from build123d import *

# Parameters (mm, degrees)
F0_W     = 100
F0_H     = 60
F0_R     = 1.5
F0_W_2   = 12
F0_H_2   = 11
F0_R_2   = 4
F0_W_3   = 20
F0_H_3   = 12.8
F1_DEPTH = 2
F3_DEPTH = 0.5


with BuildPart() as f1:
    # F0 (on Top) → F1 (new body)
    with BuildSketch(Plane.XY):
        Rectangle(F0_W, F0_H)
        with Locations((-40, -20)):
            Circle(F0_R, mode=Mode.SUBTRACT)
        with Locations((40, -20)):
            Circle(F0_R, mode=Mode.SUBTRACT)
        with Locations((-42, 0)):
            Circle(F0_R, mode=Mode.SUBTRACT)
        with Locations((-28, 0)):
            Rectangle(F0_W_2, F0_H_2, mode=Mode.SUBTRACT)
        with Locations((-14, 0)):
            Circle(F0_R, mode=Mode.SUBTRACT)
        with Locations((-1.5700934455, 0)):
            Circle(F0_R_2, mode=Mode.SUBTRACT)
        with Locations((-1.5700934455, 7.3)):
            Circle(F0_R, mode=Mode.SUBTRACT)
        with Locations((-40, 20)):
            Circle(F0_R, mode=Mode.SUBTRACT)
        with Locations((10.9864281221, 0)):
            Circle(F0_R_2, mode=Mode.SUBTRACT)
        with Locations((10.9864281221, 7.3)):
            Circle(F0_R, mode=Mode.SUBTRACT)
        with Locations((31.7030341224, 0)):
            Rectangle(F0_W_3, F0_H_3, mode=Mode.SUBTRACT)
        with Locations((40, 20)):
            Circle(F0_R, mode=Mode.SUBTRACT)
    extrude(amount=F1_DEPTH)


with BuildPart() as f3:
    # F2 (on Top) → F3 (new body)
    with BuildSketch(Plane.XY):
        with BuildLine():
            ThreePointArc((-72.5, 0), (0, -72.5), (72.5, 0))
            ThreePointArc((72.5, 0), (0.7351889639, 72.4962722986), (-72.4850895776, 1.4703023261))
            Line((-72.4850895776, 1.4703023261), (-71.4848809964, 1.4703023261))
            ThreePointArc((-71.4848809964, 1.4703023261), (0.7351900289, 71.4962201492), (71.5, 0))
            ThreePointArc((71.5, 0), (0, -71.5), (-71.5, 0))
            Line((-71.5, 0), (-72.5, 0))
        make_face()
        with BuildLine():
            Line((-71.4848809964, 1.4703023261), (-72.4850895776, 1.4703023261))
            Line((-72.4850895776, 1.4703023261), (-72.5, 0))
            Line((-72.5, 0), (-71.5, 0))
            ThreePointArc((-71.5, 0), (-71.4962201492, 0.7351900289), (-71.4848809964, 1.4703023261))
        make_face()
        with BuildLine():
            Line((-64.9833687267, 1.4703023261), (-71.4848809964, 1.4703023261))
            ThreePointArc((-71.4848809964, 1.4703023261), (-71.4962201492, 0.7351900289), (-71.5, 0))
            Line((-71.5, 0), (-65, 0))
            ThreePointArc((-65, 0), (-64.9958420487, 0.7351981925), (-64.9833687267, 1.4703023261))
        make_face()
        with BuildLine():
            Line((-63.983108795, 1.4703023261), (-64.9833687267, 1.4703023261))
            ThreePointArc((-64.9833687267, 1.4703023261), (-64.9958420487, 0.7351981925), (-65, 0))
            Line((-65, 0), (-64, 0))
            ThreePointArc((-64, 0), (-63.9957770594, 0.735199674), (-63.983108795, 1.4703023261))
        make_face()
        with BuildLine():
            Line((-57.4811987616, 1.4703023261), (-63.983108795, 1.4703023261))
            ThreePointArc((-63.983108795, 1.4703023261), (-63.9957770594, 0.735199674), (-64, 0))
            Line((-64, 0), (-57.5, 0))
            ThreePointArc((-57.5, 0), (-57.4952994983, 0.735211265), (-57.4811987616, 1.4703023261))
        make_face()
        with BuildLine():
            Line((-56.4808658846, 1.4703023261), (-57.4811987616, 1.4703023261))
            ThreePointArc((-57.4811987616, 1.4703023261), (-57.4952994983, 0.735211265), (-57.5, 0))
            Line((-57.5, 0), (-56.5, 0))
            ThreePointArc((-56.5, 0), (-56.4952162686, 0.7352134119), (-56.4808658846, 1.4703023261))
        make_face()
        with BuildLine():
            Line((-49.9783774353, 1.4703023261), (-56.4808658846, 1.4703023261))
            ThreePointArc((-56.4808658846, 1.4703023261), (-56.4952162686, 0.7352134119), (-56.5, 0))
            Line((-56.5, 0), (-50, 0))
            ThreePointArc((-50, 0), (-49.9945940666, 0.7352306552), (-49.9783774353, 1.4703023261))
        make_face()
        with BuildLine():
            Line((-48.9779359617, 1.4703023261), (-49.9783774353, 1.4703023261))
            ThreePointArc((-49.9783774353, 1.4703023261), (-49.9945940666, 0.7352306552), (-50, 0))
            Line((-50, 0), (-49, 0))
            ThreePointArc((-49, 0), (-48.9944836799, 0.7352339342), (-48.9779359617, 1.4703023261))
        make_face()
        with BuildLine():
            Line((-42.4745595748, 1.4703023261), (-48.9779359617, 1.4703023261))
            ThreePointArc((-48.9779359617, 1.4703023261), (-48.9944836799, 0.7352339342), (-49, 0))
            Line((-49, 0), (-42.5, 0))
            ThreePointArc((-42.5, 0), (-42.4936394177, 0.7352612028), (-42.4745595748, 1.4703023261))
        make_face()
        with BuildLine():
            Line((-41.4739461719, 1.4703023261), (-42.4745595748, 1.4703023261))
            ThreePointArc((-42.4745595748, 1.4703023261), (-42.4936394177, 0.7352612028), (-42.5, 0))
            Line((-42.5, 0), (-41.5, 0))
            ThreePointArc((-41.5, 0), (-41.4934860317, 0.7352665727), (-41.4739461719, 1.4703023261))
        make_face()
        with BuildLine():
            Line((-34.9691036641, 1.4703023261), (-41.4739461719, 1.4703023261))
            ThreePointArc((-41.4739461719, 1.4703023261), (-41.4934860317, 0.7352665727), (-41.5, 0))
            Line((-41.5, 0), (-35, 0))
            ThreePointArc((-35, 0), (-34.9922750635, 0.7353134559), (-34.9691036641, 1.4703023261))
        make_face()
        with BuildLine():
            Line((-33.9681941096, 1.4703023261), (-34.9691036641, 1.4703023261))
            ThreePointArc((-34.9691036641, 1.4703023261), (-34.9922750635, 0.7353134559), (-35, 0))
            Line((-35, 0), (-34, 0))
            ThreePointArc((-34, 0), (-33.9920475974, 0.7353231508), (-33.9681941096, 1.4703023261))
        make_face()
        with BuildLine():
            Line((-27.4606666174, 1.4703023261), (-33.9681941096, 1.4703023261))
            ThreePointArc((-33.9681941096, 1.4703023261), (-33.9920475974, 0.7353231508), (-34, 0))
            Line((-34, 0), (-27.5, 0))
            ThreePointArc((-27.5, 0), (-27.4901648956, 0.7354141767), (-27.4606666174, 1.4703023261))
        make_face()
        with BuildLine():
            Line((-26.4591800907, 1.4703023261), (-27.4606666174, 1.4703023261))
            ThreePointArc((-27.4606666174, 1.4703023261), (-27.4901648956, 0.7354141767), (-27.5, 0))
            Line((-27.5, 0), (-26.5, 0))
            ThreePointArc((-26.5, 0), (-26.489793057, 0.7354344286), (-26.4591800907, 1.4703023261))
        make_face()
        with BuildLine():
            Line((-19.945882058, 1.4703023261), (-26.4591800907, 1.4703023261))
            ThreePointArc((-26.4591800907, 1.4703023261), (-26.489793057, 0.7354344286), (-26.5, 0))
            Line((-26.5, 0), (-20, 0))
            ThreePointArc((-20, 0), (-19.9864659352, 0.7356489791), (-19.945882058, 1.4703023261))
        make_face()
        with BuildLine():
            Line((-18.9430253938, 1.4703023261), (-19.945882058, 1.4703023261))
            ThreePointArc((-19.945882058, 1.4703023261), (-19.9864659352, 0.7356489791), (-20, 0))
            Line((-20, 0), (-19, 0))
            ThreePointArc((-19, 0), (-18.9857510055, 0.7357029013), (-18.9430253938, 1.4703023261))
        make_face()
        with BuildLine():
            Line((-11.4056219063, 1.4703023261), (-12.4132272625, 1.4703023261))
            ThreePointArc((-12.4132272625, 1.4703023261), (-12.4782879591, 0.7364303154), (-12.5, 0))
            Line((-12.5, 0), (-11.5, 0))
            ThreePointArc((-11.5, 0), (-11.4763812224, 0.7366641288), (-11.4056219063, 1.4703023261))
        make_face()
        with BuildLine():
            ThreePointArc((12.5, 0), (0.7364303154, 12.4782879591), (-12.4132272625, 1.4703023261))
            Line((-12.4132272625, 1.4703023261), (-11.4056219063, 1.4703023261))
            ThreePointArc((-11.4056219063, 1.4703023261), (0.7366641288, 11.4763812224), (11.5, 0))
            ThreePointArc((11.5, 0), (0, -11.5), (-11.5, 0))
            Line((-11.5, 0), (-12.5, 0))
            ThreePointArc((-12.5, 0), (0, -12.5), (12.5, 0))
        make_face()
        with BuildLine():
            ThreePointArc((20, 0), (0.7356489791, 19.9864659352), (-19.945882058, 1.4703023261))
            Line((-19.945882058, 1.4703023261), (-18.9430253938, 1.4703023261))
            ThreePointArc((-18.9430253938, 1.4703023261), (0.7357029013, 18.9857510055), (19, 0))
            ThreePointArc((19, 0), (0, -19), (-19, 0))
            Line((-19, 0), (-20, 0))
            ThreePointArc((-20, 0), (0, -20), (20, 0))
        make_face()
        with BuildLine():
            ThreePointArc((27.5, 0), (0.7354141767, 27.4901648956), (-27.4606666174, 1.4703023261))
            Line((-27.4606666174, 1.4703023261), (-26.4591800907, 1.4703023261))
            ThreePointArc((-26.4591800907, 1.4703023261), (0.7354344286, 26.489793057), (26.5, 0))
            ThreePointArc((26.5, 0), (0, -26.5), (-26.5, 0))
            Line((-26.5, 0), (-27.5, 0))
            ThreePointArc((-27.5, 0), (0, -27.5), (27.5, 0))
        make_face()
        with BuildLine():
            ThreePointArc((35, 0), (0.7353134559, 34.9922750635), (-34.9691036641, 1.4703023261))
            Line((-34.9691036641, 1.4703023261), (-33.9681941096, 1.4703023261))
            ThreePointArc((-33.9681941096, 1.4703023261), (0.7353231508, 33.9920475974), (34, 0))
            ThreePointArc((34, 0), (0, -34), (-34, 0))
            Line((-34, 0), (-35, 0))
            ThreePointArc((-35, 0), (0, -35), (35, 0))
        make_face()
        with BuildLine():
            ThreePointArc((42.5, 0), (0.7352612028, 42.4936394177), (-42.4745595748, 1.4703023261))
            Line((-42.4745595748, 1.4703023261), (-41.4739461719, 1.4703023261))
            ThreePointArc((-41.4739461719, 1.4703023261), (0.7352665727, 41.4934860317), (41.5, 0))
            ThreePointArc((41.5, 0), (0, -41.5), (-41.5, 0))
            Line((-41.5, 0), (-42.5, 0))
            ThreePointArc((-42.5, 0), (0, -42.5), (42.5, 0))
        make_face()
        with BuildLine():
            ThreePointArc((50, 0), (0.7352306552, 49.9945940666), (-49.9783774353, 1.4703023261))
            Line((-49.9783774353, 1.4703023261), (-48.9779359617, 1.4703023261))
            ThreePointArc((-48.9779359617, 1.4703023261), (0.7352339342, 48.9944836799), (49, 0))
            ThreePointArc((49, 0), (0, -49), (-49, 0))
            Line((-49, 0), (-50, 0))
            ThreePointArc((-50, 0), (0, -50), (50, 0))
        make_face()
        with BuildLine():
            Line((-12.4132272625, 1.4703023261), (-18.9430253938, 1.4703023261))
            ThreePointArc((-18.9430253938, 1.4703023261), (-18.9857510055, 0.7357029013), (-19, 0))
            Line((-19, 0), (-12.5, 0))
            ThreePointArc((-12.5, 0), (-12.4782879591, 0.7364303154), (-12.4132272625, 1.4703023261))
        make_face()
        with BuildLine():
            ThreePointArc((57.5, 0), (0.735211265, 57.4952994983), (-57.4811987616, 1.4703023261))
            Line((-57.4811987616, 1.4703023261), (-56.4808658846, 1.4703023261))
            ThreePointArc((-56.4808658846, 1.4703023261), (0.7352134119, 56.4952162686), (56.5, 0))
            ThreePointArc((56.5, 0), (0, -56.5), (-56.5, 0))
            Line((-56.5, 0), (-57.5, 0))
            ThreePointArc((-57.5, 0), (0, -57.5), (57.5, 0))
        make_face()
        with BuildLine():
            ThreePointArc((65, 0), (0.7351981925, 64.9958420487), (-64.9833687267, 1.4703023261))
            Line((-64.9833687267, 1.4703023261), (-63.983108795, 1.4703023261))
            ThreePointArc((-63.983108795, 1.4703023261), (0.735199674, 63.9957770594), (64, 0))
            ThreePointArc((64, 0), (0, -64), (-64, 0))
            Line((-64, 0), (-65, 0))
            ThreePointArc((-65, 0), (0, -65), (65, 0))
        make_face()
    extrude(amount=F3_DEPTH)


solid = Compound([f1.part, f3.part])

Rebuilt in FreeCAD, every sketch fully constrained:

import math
import FreeCAD as App
import Part
import Sketcher

V = App.Vector


def add_polygon(sketch, points):
    """Adds a closed chain of lines whose ends are joined by coincident constraints."""
    first, n = sketch.GeometryCount, len(points)
    for a, b in zip(points, points[1:] + points[:1]):
        sketch.addGeometry(Part.LineSegment(App.Vector(*a, 0), App.Vector(*b, 0)), False)
    for i in range(n):
        sketch.addConstraint(Sketcher.Constraint("Coincident", first + i, 2, first + (i + 1) % n, 1))

doc = App.newDocument("Part")
body = doc.addObject("PartDesign::Body", "Body")

# Sketch on XY plane
sketch1 = doc.addObject("Sketcher::SketchObject", "Sketch")
body.addObject(sketch1)
sketch1.AttachmentSupport = (doc.XY_Plane, [""])
sketch1.MapMode = "FlatFace"
add_polygon(sketch1, [(-50, 30), (-50, -30), (50, -30), (50, 30)])  # lines 0-3
sketch1.addGeometry(Part.Circle(V(-40, -20, 0), V(0, 0, 1), 1.5), False)  # 4
sketch1.addGeometry(Part.Circle(V(40, -20, 0), V(0, 0, 1), 1.5), False)  # 5
sketch1.addGeometry(Part.Circle(V(-42, 0, 0), V(0, 0, 1), 1.5), False)  # 6
add_polygon(sketch1, [(-22, -5.5), (-34, -5.5), (-34, 5.5), (-22, 5.5)])  # lines 7-10
sketch1.addGeometry(Part.Circle(V(-14, 0, 0), V(0, 0, 1), 1.5), False)  # 11
sketch1.addGeometry(Part.Circle(V(-1.6, 0, 0), V(0, 0, 1), 4), False)  # 12
sketch1.addGeometry(Part.Circle(V(-1.6, 7.3, 0), V(0, 0, 1), 1.5), False)  # 13
sketch1.addGeometry(Part.Circle(V(-40, 20, 0), V(0, 0, 1), 1.5), False)  # 14
sketch1.addGeometry(Part.Circle(V(11, 0, 0), V(0, 0, 1), 4), False)  # 15
sketch1.addGeometry(Part.Circle(V(11, 7.3, 0), V(0, 0, 1), 1.5), False)  # 16
add_polygon(sketch1, [(41.7, -6.4), (21.7, -6.4), (21.7, 6.4), (41.7, 6.4)])  # lines 17-20
sketch1.addGeometry(Part.Circle(V(40, 20, 0), V(0, 0, 1), 1.5), False)  # 21
sketch1.addConstraint([
    Sketcher.Constraint("Vertical", 0),
    Sketcher.Constraint("Horizontal", 1),
    Sketcher.Constraint("Vertical", 2),
    Sketcher.Constraint("Horizontal", 3),
    Sketcher.Constraint("Horizontal", 7),
    Sketcher.Constraint("Vertical", 8),
    Sketcher.Constraint("Horizontal", 9),
    Sketcher.Constraint("Vertical", 10),
    Sketcher.Constraint("Horizontal", 17),
    Sketcher.Constraint("Vertical", 18),
    Sketcher.Constraint("Horizontal", 19),
    Sketcher.Constraint("Vertical", 20),
    Sketcher.Constraint("Equal", 4, 5),
    Sketcher.Constraint("Equal", 5, 6),
    Sketcher.Constraint("Equal", 6, 11),
    Sketcher.Constraint("Equal", 11, 13),
    Sketcher.Constraint("Equal", 13, 14),
    Sketcher.Constraint("Equal", 12, 15),
    Sketcher.Constraint("Equal", 14, 16),
    Sketcher.Constraint("Equal", 16, 21),
    Sketcher.Constraint("Symmetric", 5, 3, 14, 3, -1, 1),
    Sketcher.Constraint("Symmetric", 4, 3, 21, 3, -1, 1),
    Sketcher.Constraint("Symmetric", 0, 2, 2, 2, -1, 1),
    Sketcher.Constraint("Symmetric", 4, 3, 5, 3, -2),
    Sketcher.Constraint("PointOnObject", 6, 3, -1),
    Sketcher.Constraint("PointOnObject", 11, 3, -1),
    Sketcher.Constraint("PointOnObject", 12, 3, -1),
    Sketcher.Constraint("PointOnObject", 15, 3, -1),
    Sketcher.Constraint("Horizontal", 13, 3, 16, 3),
    Sketcher.Constraint("Vertical", 12, 3, 13, 3),
    Sketcher.Constraint("Vertical", 15, 3, 16, 3),
    Sketcher.Constraint("Diameter", 4, 3.0),
    Sketcher.Constraint("Diameter", 12, 8.0),
    Sketcher.Constraint("DistanceX", 1, 1, 1, 2, 100.0),
    Sketcher.Constraint("DistanceX", 7, 2, 7, 1, 12.0),
    Sketcher.Constraint("DistanceX", 17, 2, 17, 1, 20.0),
    Sketcher.Constraint("DistanceY", 0, 2, 0, 1, 60.0),
    Sketcher.Constraint("DistanceY", 8, 1, 8, 2, 11.0),
    Sketcher.Constraint("DistanceY", 18, 1, 18, 2, 12.8),
    Sketcher.Constraint("DistanceX", 4, 3, -1, 1, 40.0),
    Sketcher.Constraint("DistanceY", 4, 3, -1, 1, 20.0),
    Sketcher.Constraint("DistanceX", 6, 3, -1, 1, 42.0),
    Sketcher.Constraint("DistanceX", 11, 3, -1, 1, 14.0),
    Sketcher.Constraint("DistanceX", 7, 2, -1, 1, 34.0),
    Sketcher.Constraint("DistanceY", -1, 1, 13, 3, 7.3),
    Sketcher.Constraint("DistanceY", 7, 2, -1, 1, 5.5),
    Sketcher.Constraint("DistanceY", 17, 2, -1, 1, 6.4),
    Sketcher.Constraint("DistanceX", -1, 1, 15, 3, 10.986428),
    Sketcher.Constraint("DistanceX", 12, 3, 15, 3, 12.556522),
    Sketcher.Constraint("DistanceX", -1, 1, 17, 2, 21.703034),
])
pad1 = doc.addObject("PartDesign::Pad", "Pad")
body.addObject(pad1)
pad1.Profile = sketch1
pad1.Length = 2
body2 = doc.addObject("PartDesign::Body", "Body001")

# Sketch on XY plane
sketch2 = doc.addObject("Sketcher::SketchObject", "Sketch001")
body2.addObject(sketch2)
sketch2.AttachmentSupport = (doc.getObject("XY_Plane001"), [""])
sketch2.MapMode = "FlatFace"
sketch2.addGeometry([
    Part.ArcOfCircle(Part.Circle(V(0, 0, 0), V(0, 0, 1), 72.5), math.radians(180), math.radians(539)),  # 0
    Part.LineSegment(V(-72.5, 1.5, 0), V(-72.5, 0, 0)),  # 1
    Part.ArcOfCircle(Part.Circle(V(0, 0, 0), V(0, 0, 1), 71.5), math.radians(180), math.radians(539)),  # 2
    Part.LineSegment(V(-71.5, 0, 0), V(-65, 0, 0)),  # 3
    Part.ArcOfCircle(Part.Circle(V(0, 0, 0), V(0, 0, 1), 65), math.radians(180), math.radians(539)),  # 4
    Part.LineSegment(V(-65, 1.5, 0), V(-71.5, 1.5, 0)),  # 5
    Part.LineSegment(V(-64, 0, 0), V(-57.5, 0, 0)),  # 6
    Part.ArcOfCircle(Part.Circle(V(0, 0, 0), V(0, 0, 1), 57.5), math.radians(180), math.radians(539)),  # 7
    Part.LineSegment(V(-57.5, 1.5, 0), V(-64, 1.5, 0)),  # 8
    Part.ArcOfCircle(Part.Circle(V(0, 0, 0), V(0, 0, 1), 64), math.radians(180), math.radians(539)),  # 9
    Part.LineSegment(V(-56.5, 0, 0), V(-50, 0, 0)),  # 10
    Part.ArcOfCircle(Part.Circle(V(0, 0, 0), V(0, 0, 1), 50), math.radians(180), math.radians(538)),  # 11
    Part.LineSegment(V(-50, 1.5, 0), V(-56.5, 1.5, 0)),  # 12
    Part.ArcOfCircle(Part.Circle(V(0, 0, 0), V(0, 0, 1), 56.5), math.radians(180), math.radians(539)),  # 13
    Part.LineSegment(V(-49, 0, 0), V(-42.5, 0, 0)),  # 14
    Part.ArcOfCircle(Part.Circle(V(0, 0, 0), V(0, 0, 1), 42.5), math.radians(180), math.radians(360)),  # 15
    Part.ArcOfCircle(Part.Circle(V(0, 0, 0), V(0, 0, 1), 42.5), math.radians(0), math.radians(178)),  # 16
    Part.LineSegment(V(-42.5, 1.5, 0), V(-49, 1.5, 0)),  # 17
    Part.ArcOfCircle(Part.Circle(V(0, 0, 0), V(0, 0, 1), 49), math.radians(180), math.radians(538)),  # 18
    Part.LineSegment(V(-41.5, 0, 0), V(-35, 0, 0)),  # 19
    Part.ArcOfCircle(Part.Circle(V(0, 0, 0), V(0, 0, 1), 35), math.radians(180), math.radians(538)),  # 20
    Part.LineSegment(V(-35, 1.5, 0), V(-41.5, 1.5, 0)),  # 21
    Part.ArcOfCircle(Part.Circle(V(0, 0, 0), V(0, 0, 1), 41.5), math.radians(0), math.radians(178)),  # 22
    Part.ArcOfCircle(Part.Circle(V(0, 0, 0), V(0, 0, 1), 41.5), math.radians(180), math.radians(360)),  # 23
    Part.LineSegment(V(-34, 0, 0), V(-27.5, 0, 0)),  # 24
    Part.ArcOfCircle(Part.Circle(V(0, 0, 0), V(0, 0, 1), 27.5), math.radians(180), math.radians(360)),  # 25
    Part.ArcOfCircle(Part.Circle(V(0, 0, 0), V(0, 0, 1), 27.5), math.radians(0), math.radians(177)),  # 26
    Part.LineSegment(V(-27.5, 1.5, 0), V(-34, 1.5, 0)),  # 27
    Part.ArcOfCircle(Part.Circle(V(0, 0, 0), V(0, 0, 1), 34), math.radians(180), math.radians(538)),  # 28
    Part.LineSegment(V(-26.5, 0, 0), V(-20, 0, 0)),  # 29
    Part.ArcOfCircle(Part.Circle(V(0, 0, 0), V(0, 0, 1), 20), math.radians(180), math.radians(360)),  # 30
    Part.ArcOfCircle(Part.Circle(V(0, 0, 0), V(0, 0, 1), 20), math.radians(0), math.radians(176)),  # 31
    Part.LineSegment(V(-19.9, 1.5, 0), V(-26.5, 1.5, 0)),  # 32
    Part.ArcOfCircle(Part.Circle(V(0, 0, 0), V(0, 0, 1), 26.5), math.radians(180), math.radians(537)),  # 33
    Part.ArcOfCircle(Part.Circle(V(0, 0, 0), V(0, 0, 1), 19), math.radians(0), math.radians(176)),  # 34
    Part.ArcOfCircle(Part.Circle(V(0, 0, 0), V(0, 0, 1), 19), math.radians(180), math.radians(360)),  # 35
    Part.LineSegment(V(-19, 0, 0), V(-12.5, 0, 0)),  # 36
    Part.ArcOfCircle(Part.Circle(V(0, 0, 0), V(0, 0, 1), 12.5), math.radians(180), math.radians(360)),  # 37
    Part.ArcOfCircle(Part.Circle(V(0, 0, 0), V(0, 0, 1), 12.5), math.radians(0), math.radians(173)),  # 38
    Part.LineSegment(V(-12.4, 1.5, 0), V(-18.9, 1.5, 0)),  # 39
    Part.ArcOfCircle(Part.Circle(V(0, 0, 0), V(0, 0, 1), 11.5), math.radians(180), math.radians(360)),  # 40
    Part.ArcOfCircle(Part.Circle(V(0, 0, 0), V(0, 0, 1), 11.5), math.radians(172.65), math.radians(180)),  # 41
    Part.ArcOfCircle(Part.Circle(V(0, 0, 0), V(0, 0, 1), 11.5), math.radians(0), math.radians(173)),  # 42
], False)
sketch2.addConstraint([
    Sketcher.Constraint("Coincident", 0, 1, 1, 2),
    Sketcher.Constraint("Coincident", 1, 1, 0, 2),
    Sketcher.Constraint("Coincident", 2, 1, 3, 1),
    Sketcher.Constraint("Coincident", 3, 2, 4, 1),
    Sketcher.Constraint("Coincident", 4, 2, 5, 1),
    Sketcher.Constraint("Coincident", 5, 2, 2, 2),
    Sketcher.Constraint("Coincident", 6, 2, 7, 1),
    Sketcher.Constraint("Coincident", 7, 2, 8, 1),
    Sketcher.Constraint("Coincident", 8, 2, 9, 2),
    Sketcher.Constraint("Coincident", 9, 1, 6, 1),
    Sketcher.Constraint("Coincident", 10, 2, 11, 1),
    Sketcher.Constraint("Coincident", 11, 2, 12, 1),
    Sketcher.Constraint("Coincident", 12, 2, 13, 2),
    Sketcher.Constraint("Coincident", 13, 1, 10, 1),
    Sketcher.Constraint("Coincident", 14, 2, 15, 1),
    Sketcher.Constraint("Tangent", 15, 2, 16, 1),
    Sketcher.Constraint("Coincident", 16, 2, 17, 1),
    Sketcher.Constraint("Coincident", 17, 2, 18, 2),
    Sketcher.Constraint("Coincident", 18, 1, 14, 1),
    Sketcher.Constraint("Coincident", 19, 2, 20, 1),
    Sketcher.Constraint("Coincident", 20, 2, 21, 1),
    Sketcher.Constraint("Coincident", 21, 2, 22, 2),
    Sketcher.Constraint("Tangent", 22, 1, 23, 2),
    Sketcher.Constraint("Coincident", 23, 1, 19, 1),
    Sketcher.Constraint("Coincident", 24, 2, 25, 1),
    Sketcher.Constraint("Tangent", 25, 2, 26, 1),
    Sketcher.Constraint("Coincident", 26, 2, 27, 1),
    Sketcher.Constraint("Coincident", 27, 2, 28, 2),
    Sketcher.Constraint("Coincident", 28, 1, 24, 1),
    Sketcher.Constraint("Coincident", 29, 2, 30, 1),
    Sketcher.Constraint("Tangent", 30, 2, 31, 1),
    Sketcher.Constraint("Coincident", 31, 2, 32, 1),
    Sketcher.Constraint("Coincident", 32, 2, 33, 2),
    Sketcher.Constraint("Coincident", 33, 1, 29, 1),
    Sketcher.Constraint("Tangent", 34, 1, 35, 2),
    Sketcher.Constraint("Coincident", 35, 1, 36, 1),
    Sketcher.Constraint("Coincident", 36, 2, 37, 1),
    Sketcher.Constraint("Tangent", 37, 2, 38, 1),
    Sketcher.Constraint("Coincident", 38, 2, 39, 1),
    Sketcher.Constraint("Coincident", 39, 2, 34, 2),
    Sketcher.Constraint("Tangent", 40, 1, 41, 2),
    Sketcher.Constraint("Tangent", 41, 1, 42, 2),
    Sketcher.Constraint("Tangent", 42, 1, 40, 2),
    Sketcher.Constraint("Horizontal", 3),
    Sketcher.Constraint("Horizontal", 5),
    Sketcher.Constraint("Horizontal", 6),
    Sketcher.Constraint("Horizontal", 8),
    Sketcher.Constraint("Horizontal", 10),
    Sketcher.Constraint("Horizontal", 12),
    Sketcher.Constraint("Horizontal", 14),
    Sketcher.Constraint("Horizontal", 17),
    Sketcher.Constraint("Horizontal", 19),
    Sketcher.Constraint("Horizontal", 21),
    Sketcher.Constraint("Horizontal", 24),
    Sketcher.Constraint("Horizontal", 27),
    Sketcher.Constraint("Horizontal", 29),
    Sketcher.Constraint("Horizontal", 32),
    Sketcher.Constraint("Horizontal", 36),
    Sketcher.Constraint("Horizontal", 39),
    Sketcher.Constraint("Coincident", 0, 3, -1, 1),
    Sketcher.Constraint("Coincident", 2, 3, -1, 1),
    Sketcher.Constraint("Coincident", 4, 3, -1, 1),
    Sketcher.Constraint("Coincident", 7, 3, -1, 1),
    Sketcher.Constraint("Coincident", 9, 3, -1, 1),
    Sketcher.Constraint("Coincident", 11, 3, -1, 1),
    Sketcher.Constraint("Coincident", 13, 3, -1, 1),
    Sketcher.Constraint("Coincident", 15, 3, -1, 1),
    Sketcher.Constraint("Coincident", 18, 3, -1, 1),
    Sketcher.Constraint("Coincident", 20, 3, -1, 1),
    Sketcher.Constraint("Coincident", 22, 3, -1, 1),
    Sketcher.Constraint("Coincident", 25, 3, -1, 1),
    Sketcher.Constraint("Coincident", 28, 3, -1, 1),
    Sketcher.Constraint("Coincident", 30, 3, -1, 1),
    Sketcher.Constraint("Coincident", 33, 3, -1, 1),
    Sketcher.Constraint("Coincident", 34, 3, -1, 1),
    Sketcher.Constraint("Coincident", 37, 3, -1, 1),
    Sketcher.Constraint("Coincident", 40, 3, -1, 1),
    Sketcher.Constraint("Equal", 15, 16),
    Sketcher.Constraint("Equal", 22, 23),
    Sketcher.Constraint("Equal", 25, 26),
    Sketcher.Constraint("Equal", 30, 31),
    Sketcher.Constraint("Equal", 34, 35),
    Sketcher.Constraint("Equal", 37, 38),
    Sketcher.Constraint("PointOnObject", 0, 1, -1),
    Sketcher.Constraint("PointOnObject", 2, 1, -1),
    Sketcher.Constraint("PointOnObject", 6, 2, -1),
    Sketcher.Constraint("PointOnObject", 10, 2, -1),
    Sketcher.Constraint("PointOnObject", 14, 2, -1),
    Sketcher.Constraint("PointOnObject", 15, 2, -1),
    Sketcher.Constraint("PointOnObject", 19, 2, -1),
    Sketcher.Constraint("PointOnObject", 22, 1, -1),
    Sketcher.Constraint("PointOnObject", 24, 2, -1),
    Sketcher.Constraint("PointOnObject", 25, 2, -1),
    Sketcher.Constraint("PointOnObject", 29, 2, -1),
    Sketcher.Constraint("PointOnObject", 30, 2, -1),
    Sketcher.Constraint("PointOnObject", 34, 1, -1),
    Sketcher.Constraint("PointOnObject", 35, 1, -1),
    Sketcher.Constraint("PointOnObject", 37, 2, -1),
    Sketcher.Constraint("PointOnObject", 40, 1, -1),
    Sketcher.Constraint("PointOnObject", 42, 1, -1),
    Sketcher.Constraint("Horizontal", 1, 1, 4, 2),
    Sketcher.Constraint("Horizontal", 5, 2, 7, 2),
    Sketcher.Constraint("Horizontal", 8, 2, 11, 2),
    Sketcher.Constraint("Horizontal", 12, 2, 16, 2),
    Sketcher.Constraint("Horizontal", 17, 2, 20, 2),
    Sketcher.Constraint("Horizontal", 21, 2, 26, 2),
    Sketcher.Constraint("Horizontal", 27, 2, 31, 2),
    Sketcher.Constraint("Horizontal", 32, 2, 38, 2),
    Sketcher.Constraint("Horizontal", 39, 2, 41, 1),
    Sketcher.Constraint("Equal", 3, 6),
    Sketcher.Constraint("Equal", 6, 10),
    Sketcher.Constraint("Equal", 10, 14),
    Sketcher.Constraint("Equal", 14, 19),
    Sketcher.Constraint("Equal", 19, 24),
    Sketcher.Constraint("Equal", 24, 29),
    Sketcher.Constraint("Equal", 29, 36),
    Sketcher.Constraint("Radius", 4, 65.0),
    Sketcher.Constraint("Radius", 9, 64.0),
    Sketcher.Constraint("Radius", 11, 50.0),
    Sketcher.Constraint("Radius", 18, 49.0),
    Sketcher.Constraint("Radius", 20, 35.0),
    Sketcher.Constraint("Radius", 28, 34.0),
    Sketcher.Constraint("Radius", 30, 20.0),
    Sketcher.Constraint("Radius", 34, 19.0),
    Sketcher.Constraint("Radius", 0, 72.5),
    Sketcher.Constraint("Radius", 2, 71.5),
    Sketcher.Constraint("Radius", 40, 11.5),
    Sketcher.Constraint("DistanceX", 32, 2, 32, 1, 6.513298),
])
pad2 = doc.addObject("PartDesign::Pad", "Pad001")
body2.addObject(pad2)
pad2.Profile = sketch2
pad2.Length = 0.5

doc.recompute()
